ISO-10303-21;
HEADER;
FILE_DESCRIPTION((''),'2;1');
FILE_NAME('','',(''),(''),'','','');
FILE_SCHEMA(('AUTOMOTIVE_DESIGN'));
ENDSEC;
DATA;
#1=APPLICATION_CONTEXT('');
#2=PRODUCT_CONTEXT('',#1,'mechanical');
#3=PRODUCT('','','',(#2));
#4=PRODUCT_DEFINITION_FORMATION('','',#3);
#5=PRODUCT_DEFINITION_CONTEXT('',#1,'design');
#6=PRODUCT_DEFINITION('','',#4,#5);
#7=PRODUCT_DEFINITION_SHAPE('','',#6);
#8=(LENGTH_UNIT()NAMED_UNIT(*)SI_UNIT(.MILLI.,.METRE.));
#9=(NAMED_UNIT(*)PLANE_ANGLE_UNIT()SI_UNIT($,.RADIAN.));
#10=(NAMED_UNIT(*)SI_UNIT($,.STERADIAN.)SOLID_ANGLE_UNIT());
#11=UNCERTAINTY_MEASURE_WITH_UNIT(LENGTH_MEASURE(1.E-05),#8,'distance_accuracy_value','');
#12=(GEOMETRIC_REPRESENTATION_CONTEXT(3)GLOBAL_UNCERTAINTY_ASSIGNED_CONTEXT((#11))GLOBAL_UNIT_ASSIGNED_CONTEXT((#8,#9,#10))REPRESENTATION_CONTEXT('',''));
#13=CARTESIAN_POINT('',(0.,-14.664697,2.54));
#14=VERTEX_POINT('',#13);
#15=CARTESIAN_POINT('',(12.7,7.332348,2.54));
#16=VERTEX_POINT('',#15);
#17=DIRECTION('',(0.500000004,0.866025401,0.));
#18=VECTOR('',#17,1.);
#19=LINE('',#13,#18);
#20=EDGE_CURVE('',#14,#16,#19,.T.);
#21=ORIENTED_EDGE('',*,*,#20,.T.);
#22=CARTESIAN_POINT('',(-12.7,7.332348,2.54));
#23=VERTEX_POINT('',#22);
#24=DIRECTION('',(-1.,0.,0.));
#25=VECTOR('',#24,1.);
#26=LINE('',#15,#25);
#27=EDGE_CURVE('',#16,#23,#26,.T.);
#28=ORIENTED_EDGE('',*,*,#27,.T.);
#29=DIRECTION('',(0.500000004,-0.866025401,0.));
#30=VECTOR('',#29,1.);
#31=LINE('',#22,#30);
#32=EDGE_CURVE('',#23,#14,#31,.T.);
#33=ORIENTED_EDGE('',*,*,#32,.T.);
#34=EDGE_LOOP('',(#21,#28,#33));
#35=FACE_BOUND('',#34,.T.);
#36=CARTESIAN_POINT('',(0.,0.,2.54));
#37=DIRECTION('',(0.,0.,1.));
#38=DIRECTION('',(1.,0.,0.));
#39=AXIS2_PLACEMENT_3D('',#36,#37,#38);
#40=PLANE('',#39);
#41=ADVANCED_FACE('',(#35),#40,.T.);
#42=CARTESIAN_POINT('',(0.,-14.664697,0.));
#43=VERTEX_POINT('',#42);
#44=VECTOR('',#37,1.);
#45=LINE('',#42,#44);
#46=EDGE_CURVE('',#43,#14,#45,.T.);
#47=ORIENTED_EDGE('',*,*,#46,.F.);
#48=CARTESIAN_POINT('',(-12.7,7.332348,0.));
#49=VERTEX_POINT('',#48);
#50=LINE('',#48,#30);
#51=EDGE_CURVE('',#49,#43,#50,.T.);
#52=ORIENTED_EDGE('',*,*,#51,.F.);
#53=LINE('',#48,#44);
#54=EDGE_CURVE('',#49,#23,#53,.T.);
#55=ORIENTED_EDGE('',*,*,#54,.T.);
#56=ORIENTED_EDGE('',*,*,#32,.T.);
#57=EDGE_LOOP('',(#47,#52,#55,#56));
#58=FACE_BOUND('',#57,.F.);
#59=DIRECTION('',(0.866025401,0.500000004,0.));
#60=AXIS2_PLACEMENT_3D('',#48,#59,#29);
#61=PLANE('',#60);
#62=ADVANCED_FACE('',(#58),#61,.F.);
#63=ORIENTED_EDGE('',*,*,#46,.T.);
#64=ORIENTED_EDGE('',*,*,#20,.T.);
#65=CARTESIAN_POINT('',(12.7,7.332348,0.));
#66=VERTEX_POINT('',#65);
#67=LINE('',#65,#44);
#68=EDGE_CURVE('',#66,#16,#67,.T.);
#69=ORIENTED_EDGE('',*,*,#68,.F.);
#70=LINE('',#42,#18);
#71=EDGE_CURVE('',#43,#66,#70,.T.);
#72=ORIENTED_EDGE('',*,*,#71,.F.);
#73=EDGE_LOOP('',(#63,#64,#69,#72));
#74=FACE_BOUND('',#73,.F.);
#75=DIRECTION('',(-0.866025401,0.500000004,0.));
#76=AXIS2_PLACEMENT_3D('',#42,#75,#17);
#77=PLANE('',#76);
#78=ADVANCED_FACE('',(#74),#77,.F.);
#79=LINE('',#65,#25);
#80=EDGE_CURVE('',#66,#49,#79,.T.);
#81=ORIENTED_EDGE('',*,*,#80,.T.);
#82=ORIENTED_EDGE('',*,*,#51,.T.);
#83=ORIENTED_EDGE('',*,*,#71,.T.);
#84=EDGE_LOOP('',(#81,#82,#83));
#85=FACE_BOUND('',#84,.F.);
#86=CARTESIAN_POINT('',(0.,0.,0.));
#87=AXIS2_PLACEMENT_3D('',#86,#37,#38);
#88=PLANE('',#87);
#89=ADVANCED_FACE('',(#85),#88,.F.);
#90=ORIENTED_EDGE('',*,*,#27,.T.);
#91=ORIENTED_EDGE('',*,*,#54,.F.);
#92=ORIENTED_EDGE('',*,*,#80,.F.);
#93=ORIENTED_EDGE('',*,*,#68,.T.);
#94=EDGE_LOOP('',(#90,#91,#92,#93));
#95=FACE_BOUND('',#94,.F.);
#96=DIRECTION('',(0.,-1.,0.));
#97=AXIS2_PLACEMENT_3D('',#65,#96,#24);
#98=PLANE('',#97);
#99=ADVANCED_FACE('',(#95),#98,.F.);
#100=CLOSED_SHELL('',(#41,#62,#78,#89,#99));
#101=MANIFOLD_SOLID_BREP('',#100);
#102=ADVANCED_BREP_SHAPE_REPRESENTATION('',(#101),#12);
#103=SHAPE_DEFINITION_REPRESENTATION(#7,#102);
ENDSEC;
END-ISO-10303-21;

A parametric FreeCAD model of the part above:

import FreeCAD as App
import Part
import Sketcher

V = App.Vector
Q = App.Units.Quantity

doc = App.newDocument("Part")
body = doc.addObject("PartDesign::Body", "Body")

# Sketch on XY plane
sketch1 = body.newObject("Sketcher::SketchObject", "Sketch")
sketch1.AttachmentSupport = (doc.getObject("XY_Plane"), [""])
sketch1.MapMode = "FlatFace"
sketch1.addGeometry(Part.LineSegment(V(12.7, 7.332348, 0), V(-12.7, 7.332348, 0)), False)
sketch1.addGeometry(Part.LineSegment(V(-12.7, 7.332348, 0), V(0, -14.664697, 0)), False)
sketch1.addGeometry(Part.LineSegment(V(0, -14.664697, 0), V(12.7, 7.332348, 0)), False)
sketch1.addConstraint(Sketcher.Constraint("Coincident", 0, 2, 1, 1))
sketch1.addConstraint(Sketcher.Constraint("Coincident", 1, 2, 2, 1))
sketch1.addConstraint(Sketcher.Constraint("Coincident", 2, 2, 0, 1))
sketch1.addConstraint(Sketcher.Constraint("Horizontal", 0))
sketch1.addConstraint(Sketcher.Constraint("PointOnObject", 1, 2, -2))
sketch1.addConstraint(Sketcher.Constraint("Equal", 1, 2))
sketch1.addConstraint(Sketcher.Constraint("DistanceX", 0, 2, 0, 1, Q("1 in")))
sketch1.addConstraint(Sketcher.Constraint("Distance", 1, Q("1 in")))
sketch1.addConstraint(Sketcher.Constraint("DistanceY", -1, 1, 0, 2, 7.332348))
pad1 = body.newObject("PartDesign::Pad", "Pad")
pad1.Profile = sketch1
pad1.Length = Q("0.1 in")

doc.recompute()
